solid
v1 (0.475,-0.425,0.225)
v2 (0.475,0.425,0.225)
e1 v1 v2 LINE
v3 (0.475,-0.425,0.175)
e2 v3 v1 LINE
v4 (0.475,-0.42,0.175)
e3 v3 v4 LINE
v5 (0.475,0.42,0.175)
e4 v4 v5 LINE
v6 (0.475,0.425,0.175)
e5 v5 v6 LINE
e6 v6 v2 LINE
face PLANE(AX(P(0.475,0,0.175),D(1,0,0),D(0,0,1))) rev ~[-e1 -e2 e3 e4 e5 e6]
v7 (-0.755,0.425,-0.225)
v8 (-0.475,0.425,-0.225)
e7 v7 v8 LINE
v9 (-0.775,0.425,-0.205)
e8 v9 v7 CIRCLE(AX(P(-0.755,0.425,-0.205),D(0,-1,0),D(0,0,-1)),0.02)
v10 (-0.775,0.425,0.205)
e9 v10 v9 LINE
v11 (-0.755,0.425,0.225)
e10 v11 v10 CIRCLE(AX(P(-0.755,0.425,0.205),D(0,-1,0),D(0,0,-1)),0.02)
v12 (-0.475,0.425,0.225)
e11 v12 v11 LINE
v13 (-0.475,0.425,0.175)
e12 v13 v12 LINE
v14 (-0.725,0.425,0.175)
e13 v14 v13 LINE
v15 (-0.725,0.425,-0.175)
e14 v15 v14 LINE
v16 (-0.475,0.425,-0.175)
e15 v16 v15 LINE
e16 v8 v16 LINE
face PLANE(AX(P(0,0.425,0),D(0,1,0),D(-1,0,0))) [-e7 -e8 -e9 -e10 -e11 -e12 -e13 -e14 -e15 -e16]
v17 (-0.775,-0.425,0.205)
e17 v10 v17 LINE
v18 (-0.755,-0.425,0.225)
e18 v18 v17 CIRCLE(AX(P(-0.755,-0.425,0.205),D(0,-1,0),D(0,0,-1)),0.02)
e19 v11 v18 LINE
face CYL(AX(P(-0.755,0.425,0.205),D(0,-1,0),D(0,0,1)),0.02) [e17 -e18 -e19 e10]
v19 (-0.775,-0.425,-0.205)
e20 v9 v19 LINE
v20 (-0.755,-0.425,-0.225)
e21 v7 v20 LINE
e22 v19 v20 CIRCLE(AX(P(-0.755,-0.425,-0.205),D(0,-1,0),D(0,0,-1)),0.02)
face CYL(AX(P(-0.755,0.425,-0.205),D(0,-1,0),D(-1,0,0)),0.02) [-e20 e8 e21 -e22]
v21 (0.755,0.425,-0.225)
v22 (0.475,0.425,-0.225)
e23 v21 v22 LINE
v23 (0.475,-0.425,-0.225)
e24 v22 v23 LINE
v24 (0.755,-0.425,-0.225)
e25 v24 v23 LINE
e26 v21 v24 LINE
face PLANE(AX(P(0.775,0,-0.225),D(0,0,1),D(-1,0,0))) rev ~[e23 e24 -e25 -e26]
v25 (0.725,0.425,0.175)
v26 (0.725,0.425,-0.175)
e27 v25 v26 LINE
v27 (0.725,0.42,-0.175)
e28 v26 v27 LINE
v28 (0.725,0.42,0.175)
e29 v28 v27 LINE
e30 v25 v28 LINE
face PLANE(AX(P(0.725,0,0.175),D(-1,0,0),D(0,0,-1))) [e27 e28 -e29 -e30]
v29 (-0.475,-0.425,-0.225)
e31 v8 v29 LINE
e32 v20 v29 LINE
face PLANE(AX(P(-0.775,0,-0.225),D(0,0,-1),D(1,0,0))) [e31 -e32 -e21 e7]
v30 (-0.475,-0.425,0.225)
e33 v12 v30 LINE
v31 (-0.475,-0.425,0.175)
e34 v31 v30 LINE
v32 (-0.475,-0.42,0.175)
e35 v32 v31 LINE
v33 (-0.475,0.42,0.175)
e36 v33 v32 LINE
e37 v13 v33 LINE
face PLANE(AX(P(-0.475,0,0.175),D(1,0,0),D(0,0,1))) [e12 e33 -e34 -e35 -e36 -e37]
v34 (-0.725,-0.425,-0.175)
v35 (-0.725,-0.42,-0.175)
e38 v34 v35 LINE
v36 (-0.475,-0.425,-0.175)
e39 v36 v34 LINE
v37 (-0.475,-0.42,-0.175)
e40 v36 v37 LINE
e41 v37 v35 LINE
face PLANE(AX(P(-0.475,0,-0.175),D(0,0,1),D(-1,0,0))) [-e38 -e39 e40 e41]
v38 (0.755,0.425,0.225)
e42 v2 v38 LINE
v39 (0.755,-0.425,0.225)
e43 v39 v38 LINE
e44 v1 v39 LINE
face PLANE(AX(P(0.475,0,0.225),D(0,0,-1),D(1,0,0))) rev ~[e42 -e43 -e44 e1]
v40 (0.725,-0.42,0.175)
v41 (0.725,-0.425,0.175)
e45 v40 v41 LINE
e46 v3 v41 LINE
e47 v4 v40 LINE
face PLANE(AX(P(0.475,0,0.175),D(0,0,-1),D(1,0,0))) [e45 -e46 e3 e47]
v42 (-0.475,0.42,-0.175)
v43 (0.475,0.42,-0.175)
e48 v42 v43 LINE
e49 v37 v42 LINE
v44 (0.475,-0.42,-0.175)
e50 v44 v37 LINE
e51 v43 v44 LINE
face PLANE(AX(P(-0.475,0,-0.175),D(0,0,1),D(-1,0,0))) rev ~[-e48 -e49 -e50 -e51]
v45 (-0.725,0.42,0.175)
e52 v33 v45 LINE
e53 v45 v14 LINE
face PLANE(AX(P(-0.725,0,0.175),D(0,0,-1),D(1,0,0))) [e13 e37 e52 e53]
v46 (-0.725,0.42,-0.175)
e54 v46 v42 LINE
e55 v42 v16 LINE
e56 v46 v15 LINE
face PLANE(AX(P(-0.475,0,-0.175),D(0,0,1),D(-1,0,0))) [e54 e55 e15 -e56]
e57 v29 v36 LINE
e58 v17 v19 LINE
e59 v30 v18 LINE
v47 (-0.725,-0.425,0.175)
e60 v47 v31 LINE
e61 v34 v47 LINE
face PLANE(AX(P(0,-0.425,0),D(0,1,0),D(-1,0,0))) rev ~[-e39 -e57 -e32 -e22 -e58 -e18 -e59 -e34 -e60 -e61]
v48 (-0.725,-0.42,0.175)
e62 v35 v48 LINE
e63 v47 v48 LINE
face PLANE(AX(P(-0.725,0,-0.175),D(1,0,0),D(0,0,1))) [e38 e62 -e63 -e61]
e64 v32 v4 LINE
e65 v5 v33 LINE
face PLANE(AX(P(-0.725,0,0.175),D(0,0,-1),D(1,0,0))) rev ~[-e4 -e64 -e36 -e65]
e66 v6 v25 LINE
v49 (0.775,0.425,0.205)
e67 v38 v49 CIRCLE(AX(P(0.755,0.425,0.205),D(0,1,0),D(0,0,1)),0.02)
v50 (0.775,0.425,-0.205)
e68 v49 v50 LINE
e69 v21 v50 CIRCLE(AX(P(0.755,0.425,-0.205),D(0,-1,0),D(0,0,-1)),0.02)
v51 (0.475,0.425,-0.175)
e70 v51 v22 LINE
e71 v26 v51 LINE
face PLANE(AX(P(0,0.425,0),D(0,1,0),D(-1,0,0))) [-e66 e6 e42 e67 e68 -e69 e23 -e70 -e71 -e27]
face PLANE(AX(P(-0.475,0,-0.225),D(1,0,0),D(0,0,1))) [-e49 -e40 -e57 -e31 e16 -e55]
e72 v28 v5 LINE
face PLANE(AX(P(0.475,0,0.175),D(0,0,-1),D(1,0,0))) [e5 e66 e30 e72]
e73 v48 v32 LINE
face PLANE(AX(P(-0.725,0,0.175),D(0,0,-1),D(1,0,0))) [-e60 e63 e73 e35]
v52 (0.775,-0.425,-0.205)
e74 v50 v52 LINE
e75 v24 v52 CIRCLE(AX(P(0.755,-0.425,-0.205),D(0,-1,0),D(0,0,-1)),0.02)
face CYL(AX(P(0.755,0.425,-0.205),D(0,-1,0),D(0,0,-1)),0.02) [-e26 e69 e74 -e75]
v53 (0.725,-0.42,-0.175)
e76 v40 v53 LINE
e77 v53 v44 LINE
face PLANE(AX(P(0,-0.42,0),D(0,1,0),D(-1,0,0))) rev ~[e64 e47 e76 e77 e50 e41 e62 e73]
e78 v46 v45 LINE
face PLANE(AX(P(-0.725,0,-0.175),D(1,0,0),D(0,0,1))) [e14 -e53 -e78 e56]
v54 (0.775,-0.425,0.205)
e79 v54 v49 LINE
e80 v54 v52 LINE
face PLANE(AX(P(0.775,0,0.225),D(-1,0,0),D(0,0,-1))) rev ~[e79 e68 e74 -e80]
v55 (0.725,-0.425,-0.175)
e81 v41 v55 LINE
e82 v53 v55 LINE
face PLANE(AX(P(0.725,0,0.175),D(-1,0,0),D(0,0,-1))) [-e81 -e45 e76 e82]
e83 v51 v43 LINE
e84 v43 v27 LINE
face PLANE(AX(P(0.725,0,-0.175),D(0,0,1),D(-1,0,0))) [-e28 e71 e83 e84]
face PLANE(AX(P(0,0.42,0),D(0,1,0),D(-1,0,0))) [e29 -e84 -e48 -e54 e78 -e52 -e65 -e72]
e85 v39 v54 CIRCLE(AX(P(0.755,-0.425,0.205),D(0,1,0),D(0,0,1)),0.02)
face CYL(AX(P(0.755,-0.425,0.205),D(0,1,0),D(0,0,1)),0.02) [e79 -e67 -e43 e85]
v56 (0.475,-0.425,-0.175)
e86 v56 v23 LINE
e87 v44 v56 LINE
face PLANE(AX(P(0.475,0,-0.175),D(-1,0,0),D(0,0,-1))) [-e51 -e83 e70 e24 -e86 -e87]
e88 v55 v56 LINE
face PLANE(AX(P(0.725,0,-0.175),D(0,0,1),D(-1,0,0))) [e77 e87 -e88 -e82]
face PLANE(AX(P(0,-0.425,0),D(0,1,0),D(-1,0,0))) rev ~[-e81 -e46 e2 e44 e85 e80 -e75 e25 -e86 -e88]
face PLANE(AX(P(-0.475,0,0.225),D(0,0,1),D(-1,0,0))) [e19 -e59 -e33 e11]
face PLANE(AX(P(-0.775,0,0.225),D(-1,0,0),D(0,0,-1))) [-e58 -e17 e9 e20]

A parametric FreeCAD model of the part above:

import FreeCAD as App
import Part
import Sketcher

V = App.Vector
Q = App.Units.Quantity


def edges_at(feature, points):
    """Names of the edges that pass closest to the given points."""
    edges = feature.Shape.Edges
    near = lambda p: min(range(len(edges)), key=lambda i: edges[i].distToShape(Part.Vertex(*p))[0])
    return sorted({f"Edge{near(p) + 1}" for p in points})


def add_polygon(sketch, points):
    """Adds a closed chain of lines whose ends are joined by coincident constraints."""
    first, n = sketch.GeometryCount, len(points)
    for a, b in zip(points, points[1:] + points[:1]):
        sketch.addGeometry(Part.LineSegment(App.Vector(*a, 0), App.Vector(*b, 0)), False)
    for i in range(n):
        sketch.addConstraint(Sketcher.Constraint("Coincident", first + i, 2, first + (i + 1) % n, 1))

doc = App.newDocument("Part")
params = doc.addObject("Spreadsheet::Sheet", "Params")
for row, (alias, value) in enumerate([
    ("sketch1_width", "0.3 mm"),
    ("sketch1_height", "0.05 mm"),
    ("sketch1_height2", "0.45 mm"),
    ("pad1_length", "0.85 mm"),
    ("sketch2_width", "1.45 mm"),
    ("sketch2_height", "0.35 mm"),
    ("pad2_length", "0.84 mm"),
    ("fillet_radius", "0.02 mm"),
], start=1):
    params.set(f"A{row}", alias)
    params.set(f"B{row}", "=" + value)
    params.setAlias(f"B{row}", alias)

body = doc.addObject("PartDesign::Body", "Body")
body.AllowCompound = True

# Sketch on XZ plane
sketch1 = body.newObject("Sketcher::SketchObject", "Sketch")
sketch1.AttachmentSupport = (doc.getObject("XZ_Plane"), [""])
sketch1.MapMode = "FlatFace"
add_polygon(sketch1, [(-0.475, 0.175), (-0.725, 0.175), (-0.725, -0.175), (-0.475, -0.175), (-0.475, -0.225), (-0.775, -0.225), (-0.775, 0.225), (-0.475, 0.225)])  # lines 0-7
add_polygon(sketch1, [(0.725, 0.175), (0.475, 0.175), (0.475, 0.225), (0.775, 0.225), (0.775, -0.225), (0.475, -0.225), (0.475, -0.175), (0.725, -0.175)])  # lines 8-15
sketch1.addConstraint([
    Sketcher.Constraint("Horizontal", 0),
    Sketcher.Constraint("Vertical", 1),
    Sketcher.Constraint("Horizontal", 2),
    Sketcher.Constraint("Vertical", 3),
    Sketcher.Constraint("Horizontal", 4),
    Sketcher.Constraint("Vertical", 5),
    Sketcher.Constraint("Horizontal", 6),
    Sketcher.Constraint("Vertical", 7),
    Sketcher.Constraint("Horizontal", 8),
    Sketcher.Constraint("Vertical", 9),
    Sketcher.Constraint("Horizontal", 10),
    Sketcher.Constraint("Vertical", 11),
    Sketcher.Constraint("Horizontal", 12),
    Sketcher.Constraint("Vertical", 13),
    Sketcher.Constraint("Horizontal", 14),
    Sketcher.Constraint("Vertical", 15),
    Sketcher.Constraint("Symmetric", 2, 2, 8, 2, -1, 1),
    Sketcher.Constraint("Symmetric", 4, 2, 10, 2, -1, 1),
    Sketcher.Constraint("Symmetric", 6, 2, 12, 2, -1, 1),
    Sketcher.Constraint("Symmetric", 0, 2, 14, 2, -1, 1),
    Sketcher.Constraint("Symmetric", 7, 2, 8, 2, -2),
    Sketcher.Constraint("Horizontal", 6, 2, 9, 2),
    Sketcher.Constraint("DistanceX", 4, 2, 4, 1, Q("0.3 mm")),
    Sketcher.Constraint("DistanceY", 3, 2, 3, 1, Q("0.05 mm")),
    Sketcher.Constraint("DistanceY", 5, 1, 5, 2, Q("0.45 mm")),
    Sketcher.Constraint("DistanceX", 4, 2, 1, 2, Q("0.05 mm")),
    Sketcher.Constraint("DistanceX", 0, 2, 8, 2, Q("1.2 mm")),
])
sketch1.setExpression("Constraints[38]", "Params.sketch1_width")
sketch1.setExpression("Constraints[39]", "Params.sketch1_height")
sketch1.setExpression("Constraints[40]", "Params.sketch1_height2")
pad1 = body.newObject("PartDesign::Pad", "Pad")
pad1.Profile = sketch1
pad1.setExpression("Length", "Params.pad1_length")
pad1.Midplane = True

# Sketch on XZ plane
sketch2 = body.newObject("Sketcher::SketchObject", "Sketch001")
sketch2.AttachmentSupport = (doc.getObject("XZ_Plane"), [""])
sketch2.MapMode = "FlatFace"
add_polygon(sketch2, [(-0.725, -0.175), (-0.725, 0.175), (0.725, 0.175), (0.725, -0.175)])  # lines 0-3
sketch2.addConstraint([
    Sketcher.Constraint("Vertical", 0),
    Sketcher.Constraint("Horizontal", 1),
    Sketcher.Constraint("Vertical", 2),
    Sketcher.Constraint("Horizontal", 3),
    Sketcher.Constraint("Symmetric", 0, 2, 2, 2, -1, 1),
    Sketcher.Constraint("DistanceX", 1, 1, 1, 2, Q("1.45 mm")),
    Sketcher.Constraint("DistanceY", 0, 1, 0, 2, Q("0.35 mm")),
])
sketch2.setExpression("Constraints[9]", "Params.sketch2_width")
sketch2.setExpression("Constraints[10]", "Params.sketch2_height")
pad2 = body.newObject("PartDesign::Pad", "Pad001")
pad2.Profile = sketch2
pad2.setExpression("Length", "Params.pad2_length")
pad2.Midplane = True
doc.recompute()

fillet = body.newObject("PartDesign::Fillet", "Fillet")
fillet.Base = (pad2, edges_at(pad2, [
    (-0.775, 0, 0.225),
    (-0.775, 0, -0.225),
    (0.775, 0, 0.225),
    (0.775, 0, -0.225),
]))
fillet.setExpression("Radius", "Params.fillet_radius")

doc.recompute()
